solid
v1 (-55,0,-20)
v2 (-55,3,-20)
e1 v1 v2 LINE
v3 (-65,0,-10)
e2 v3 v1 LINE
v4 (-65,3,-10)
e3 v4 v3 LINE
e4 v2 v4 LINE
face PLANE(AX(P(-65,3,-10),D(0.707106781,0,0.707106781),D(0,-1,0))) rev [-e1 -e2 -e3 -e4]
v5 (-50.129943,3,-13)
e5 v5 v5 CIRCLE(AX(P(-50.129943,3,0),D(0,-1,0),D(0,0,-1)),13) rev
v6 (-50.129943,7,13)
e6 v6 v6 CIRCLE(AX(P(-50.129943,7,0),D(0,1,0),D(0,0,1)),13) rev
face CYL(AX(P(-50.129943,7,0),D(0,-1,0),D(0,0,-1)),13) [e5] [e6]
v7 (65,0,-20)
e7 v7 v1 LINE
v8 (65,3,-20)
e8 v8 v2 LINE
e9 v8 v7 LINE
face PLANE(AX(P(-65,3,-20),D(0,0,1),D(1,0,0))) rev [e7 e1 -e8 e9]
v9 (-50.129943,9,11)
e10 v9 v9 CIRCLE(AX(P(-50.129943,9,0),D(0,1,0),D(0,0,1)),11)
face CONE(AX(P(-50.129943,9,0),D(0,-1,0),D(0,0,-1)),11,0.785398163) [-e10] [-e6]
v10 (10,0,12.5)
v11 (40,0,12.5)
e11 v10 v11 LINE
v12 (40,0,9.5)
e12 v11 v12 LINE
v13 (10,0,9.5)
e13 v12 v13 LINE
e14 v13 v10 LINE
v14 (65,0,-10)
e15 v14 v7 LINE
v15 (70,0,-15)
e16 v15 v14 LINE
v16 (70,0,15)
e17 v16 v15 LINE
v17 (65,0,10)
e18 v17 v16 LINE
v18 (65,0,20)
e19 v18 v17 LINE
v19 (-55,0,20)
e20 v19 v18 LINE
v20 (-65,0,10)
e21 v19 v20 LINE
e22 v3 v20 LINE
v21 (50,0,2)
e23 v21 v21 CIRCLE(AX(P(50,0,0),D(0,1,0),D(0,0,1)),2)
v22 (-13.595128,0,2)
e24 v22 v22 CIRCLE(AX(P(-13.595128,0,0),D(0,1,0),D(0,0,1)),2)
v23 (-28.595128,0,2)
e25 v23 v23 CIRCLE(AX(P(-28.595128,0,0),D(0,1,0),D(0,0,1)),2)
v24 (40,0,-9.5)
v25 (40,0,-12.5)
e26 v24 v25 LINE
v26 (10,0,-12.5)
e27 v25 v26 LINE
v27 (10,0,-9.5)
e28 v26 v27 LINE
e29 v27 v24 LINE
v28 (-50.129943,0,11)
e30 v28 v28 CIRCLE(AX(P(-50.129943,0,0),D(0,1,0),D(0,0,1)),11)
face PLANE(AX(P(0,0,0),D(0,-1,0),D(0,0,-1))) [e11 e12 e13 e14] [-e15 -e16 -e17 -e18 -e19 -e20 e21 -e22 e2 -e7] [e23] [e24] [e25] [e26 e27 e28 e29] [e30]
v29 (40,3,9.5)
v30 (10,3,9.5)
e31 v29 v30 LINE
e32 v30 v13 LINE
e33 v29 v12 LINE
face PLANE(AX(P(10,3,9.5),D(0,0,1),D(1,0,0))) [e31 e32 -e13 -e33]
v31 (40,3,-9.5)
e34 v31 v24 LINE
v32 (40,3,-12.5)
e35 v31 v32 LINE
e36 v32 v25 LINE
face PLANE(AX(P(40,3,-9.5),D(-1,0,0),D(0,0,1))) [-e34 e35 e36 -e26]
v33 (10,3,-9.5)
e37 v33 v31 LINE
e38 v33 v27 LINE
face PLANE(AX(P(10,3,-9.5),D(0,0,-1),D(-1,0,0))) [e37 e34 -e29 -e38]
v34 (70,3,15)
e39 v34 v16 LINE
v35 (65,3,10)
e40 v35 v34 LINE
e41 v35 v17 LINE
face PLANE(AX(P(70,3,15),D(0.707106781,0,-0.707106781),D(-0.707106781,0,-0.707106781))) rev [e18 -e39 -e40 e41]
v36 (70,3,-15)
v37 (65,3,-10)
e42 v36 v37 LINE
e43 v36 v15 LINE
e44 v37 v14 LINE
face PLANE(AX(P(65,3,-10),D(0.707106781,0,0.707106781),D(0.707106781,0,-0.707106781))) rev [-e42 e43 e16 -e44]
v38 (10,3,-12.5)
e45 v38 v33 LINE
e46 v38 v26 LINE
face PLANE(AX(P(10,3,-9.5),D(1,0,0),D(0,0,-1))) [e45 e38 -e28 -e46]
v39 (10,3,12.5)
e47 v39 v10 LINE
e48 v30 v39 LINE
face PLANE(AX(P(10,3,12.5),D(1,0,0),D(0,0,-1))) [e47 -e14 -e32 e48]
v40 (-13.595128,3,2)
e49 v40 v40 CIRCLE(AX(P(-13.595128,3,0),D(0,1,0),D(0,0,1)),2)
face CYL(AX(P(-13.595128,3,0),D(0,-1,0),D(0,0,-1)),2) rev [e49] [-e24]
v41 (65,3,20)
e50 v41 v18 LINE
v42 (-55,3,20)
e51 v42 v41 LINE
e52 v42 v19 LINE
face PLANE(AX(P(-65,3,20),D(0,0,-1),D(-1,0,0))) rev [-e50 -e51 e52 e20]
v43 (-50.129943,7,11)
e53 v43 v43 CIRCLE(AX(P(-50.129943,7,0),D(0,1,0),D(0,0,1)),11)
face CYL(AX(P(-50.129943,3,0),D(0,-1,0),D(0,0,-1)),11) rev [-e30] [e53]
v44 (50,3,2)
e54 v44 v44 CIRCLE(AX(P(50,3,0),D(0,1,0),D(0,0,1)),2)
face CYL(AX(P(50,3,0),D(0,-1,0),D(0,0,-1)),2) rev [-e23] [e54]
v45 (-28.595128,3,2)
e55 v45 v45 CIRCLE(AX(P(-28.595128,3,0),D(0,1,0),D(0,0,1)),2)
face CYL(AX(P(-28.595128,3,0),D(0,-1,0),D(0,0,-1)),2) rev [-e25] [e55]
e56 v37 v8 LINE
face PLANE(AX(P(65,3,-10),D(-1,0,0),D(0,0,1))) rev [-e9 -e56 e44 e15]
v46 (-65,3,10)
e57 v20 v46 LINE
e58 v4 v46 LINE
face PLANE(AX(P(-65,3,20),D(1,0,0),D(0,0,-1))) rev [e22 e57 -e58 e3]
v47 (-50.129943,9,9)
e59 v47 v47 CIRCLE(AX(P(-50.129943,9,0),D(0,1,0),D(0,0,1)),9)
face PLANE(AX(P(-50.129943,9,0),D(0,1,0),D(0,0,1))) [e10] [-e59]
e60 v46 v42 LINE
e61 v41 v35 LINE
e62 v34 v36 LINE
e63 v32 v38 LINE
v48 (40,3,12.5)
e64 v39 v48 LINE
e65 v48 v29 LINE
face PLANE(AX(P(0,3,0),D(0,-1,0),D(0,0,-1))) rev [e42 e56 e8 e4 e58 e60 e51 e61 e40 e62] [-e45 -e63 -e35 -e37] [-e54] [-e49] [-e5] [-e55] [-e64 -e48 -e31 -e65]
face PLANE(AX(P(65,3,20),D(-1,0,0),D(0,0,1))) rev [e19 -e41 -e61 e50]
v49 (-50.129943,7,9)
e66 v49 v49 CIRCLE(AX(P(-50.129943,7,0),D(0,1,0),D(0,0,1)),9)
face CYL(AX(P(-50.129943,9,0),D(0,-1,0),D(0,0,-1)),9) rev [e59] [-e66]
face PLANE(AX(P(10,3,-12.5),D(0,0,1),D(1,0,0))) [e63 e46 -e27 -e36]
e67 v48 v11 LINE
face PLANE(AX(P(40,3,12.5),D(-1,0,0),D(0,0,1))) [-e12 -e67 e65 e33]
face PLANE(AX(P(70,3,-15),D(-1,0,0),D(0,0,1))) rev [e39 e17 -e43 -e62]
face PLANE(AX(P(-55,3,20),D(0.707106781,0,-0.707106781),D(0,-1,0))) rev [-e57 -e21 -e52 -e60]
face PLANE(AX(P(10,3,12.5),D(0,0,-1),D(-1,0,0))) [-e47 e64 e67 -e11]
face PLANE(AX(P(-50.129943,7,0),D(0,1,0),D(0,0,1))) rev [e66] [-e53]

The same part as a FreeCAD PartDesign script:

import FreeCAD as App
import Part
import Sketcher
from FreeCAD import Vector
Q = App.Units.Quantity


def edges_at(feature, points):
    """Names of the edges that pass closest to the given points."""
    edges = feature.Shape.Edges
    near = lambda p: min(range(len(edges)), key=lambda i: edges[i].distToShape(Part.Vertex(*p))[0])
    return sorted({f"Edge{near(p) + 1}" for p in points})

doc = App.newDocument("Part")
body = doc.addObject("PartDesign::Body", "Body")

# Sketch on XZ plane
sketch1 = doc.addObject("Sketcher::SketchObject", "Sketch")
body.addObject(sketch1)
sketch1.AttachmentSupport = (doc.XZ_Plane, [""])
sketch1.MapMode = "FlatFace"
sketch1.addGeometry(Part.LineSegment(Vector(70, -15, 0), Vector(65, -10, 0)), False)
sketch1.addGeometry(Part.LineSegment(Vector(65, -10, 0), Vector(65, -20, 0)), False)
sketch1.addGeometry(Part.LineSegment(Vector(65, -20, 0), Vector(-65, -20, 0)), False)
sketch1.addGeometry(Part.LineSegment(Vector(-65, -20, 0), Vector(-65, 20, 0)), False)
sketch1.addGeometry(Part.LineSegment(Vector(-65, 20, 0), Vector(65, 20, 0)), False)
sketch1.addGeometry(Part.LineSegment(Vector(65, 20, 0), Vector(65, 10, 0)), False)
sketch1.addGeometry(Part.LineSegment(Vector(65, 10, 0), Vector(70, 15, 0)), False)
sketch1.addGeometry(Part.LineSegment(Vector(70, 15, 0), Vector(70, -15, 0)), False)
sketch1.addGeometry(Part.LineSegment(Vector(10, 12.5, 0), Vector(10, 9.5, 0)), False)
sketch1.addGeometry(Part.LineSegment(Vector(10, 9.5, 0), Vector(40, 9.5, 0)), False)
sketch1.addGeometry(Part.LineSegment(Vector(40, 9.5, 0), Vector(40, 12.5, 0)), False)
sketch1.addGeometry(Part.LineSegment(Vector(40, 12.5, 0), Vector(10, 12.5, 0)), False)
sketch1.addGeometry(Part.Circle(Vector(50, 0, 0), Vector(0, 0, 1), 2), False)
sketch1.addGeometry(Part.LineSegment(Vector(10, -9.5, 0), Vector(10, -12.5, 0)), False)
sketch1.addGeometry(Part.LineSegment(Vector(10, -12.5, 0), Vector(40, -12.5, 0)), False)
sketch1.addGeometry(Part.LineSegment(Vector(40, -12.5, 0), Vector(40, -9.5, 0)), False)
sketch1.addGeometry(Part.LineSegment(Vector(40, -9.5, 0), Vector(10, -9.5, 0)), False)
sketch1.addGeometry(Part.Circle(Vector(-13.6, 0, 0), Vector(0, 0, 1), 2), False)
sketch1.addGeometry(Part.Circle(Vector(-28.6, 0, 0), Vector(0, 0, 1), 2), False)
sketch1.addGeometry(Part.Circle(Vector(-50.1, 0, 0), Vector(0, 0, 1), 11), False)
sketch1.addConstraint(Sketcher.Constraint("Coincident", 0, 2, 1, 1))
sketch1.addConstraint(Sketcher.Constraint("Coincident", 1, 2, 2, 1))
sketch1.addConstraint(Sketcher.Constraint("Coincident", 2, 2, 3, 1))
sketch1.addConstraint(Sketcher.Constraint("Coincident", 3, 2, 4, 1))
sketch1.addConstraint(Sketcher.Constraint("Coincident", 4, 2, 5, 1))
sketch1.addConstraint(Sketcher.Constraint("Coincident", 5, 2, 6, 1))
sketch1.addConstraint(Sketcher.Constraint("Coincident", 6, 2, 7, 1))
sketch1.addConstraint(Sketcher.Constraint("Coincident", 7, 2, 0, 1))
sketch1.addConstraint(Sketcher.Constraint("Coincident", 8, 2, 9, 1))
sketch1.addConstraint(Sketcher.Constraint("Coincident", 9, 2, 10, 1))
sketch1.addConstraint(Sketcher.Constraint("Coincident", 10, 2, 11, 1))
sketch1.addConstraint(Sketcher.Constraint("Coincident", 11, 2, 8, 1))
sketch1.addConstraint(Sketcher.Constraint("Coincident", 13, 2, 14, 1))
sketch1.addConstraint(Sketcher.Constraint("Coincident", 14, 2, 15, 1))
sketch1.addConstraint(Sketcher.Constraint("Coincident", 15, 2, 16, 1))
sketch1.addConstraint(Sketcher.Constraint("Coincident", 16, 2, 13, 1))
sketch1.addConstraint(Sketcher.Constraint("Vertical", 1))
sketch1.addConstraint(Sketcher.Constraint("Horizontal", 2))
sketch1.addConstraint(Sketcher.Constraint("Vertical", 3))
sketch1.addConstraint(Sketcher.Constraint("Horizontal", 4))
sketch1.addConstraint(Sketcher.Constraint("Vertical", 5))
sketch1.addConstraint(Sketcher.Constraint("Vertical", 7))
sketch1.addConstraint(Sketcher.Constraint("Vertical", 8))
sketch1.addConstraint(Sketcher.Constraint("Horizontal", 9))
sketch1.addConstraint(Sketcher.Constraint("Vertical", 10))
sketch1.addConstraint(Sketcher.Constraint("Horizontal", 11))
sketch1.addConstraint(Sketcher.Constraint("Vertical", 13))
sketch1.addConstraint(Sketcher.Constraint("Horizontal", 14))
sketch1.addConstraint(Sketcher.Constraint("Vertical", 15))
sketch1.addConstraint(Sketcher.Constraint("Horizontal", 16))
sketch1.addConstraint(Sketcher.Constraint("Equal", 12, 17))
sketch1.addConstraint(Sketcher.Constraint("Equal", 17, 18))
sketch1.addConstraint(Sketcher.Constraint("Symmetric", 1, 2, 3, 2, -1, 1))
sketch1.addConstraint(Sketcher.Constraint("Symmetric", 0, 2, 5, 2, -1))
sketch1.addConstraint(Sketcher.Constraint("Symmetric", 11, 2, 13, 2, -1))
sketch1.addConstraint(Sketcher.Constraint("Symmetric", 9, 2, 15, 2, -1))
sketch1.addConstraint(Sketcher.Constraint("PointOnObject", 12, 3, -1))
sketch1.addConstraint(Sketcher.Constraint("PointOnObject", 17, 3, -1))
sketch1.addConstraint(Sketcher.Constraint("PointOnObject", 18, 3, -1))
sketch1.addConstraint(Sketcher.Constraint("PointOnObject", 19, 3, -1))
sketch1.addConstraint(Sketcher.Constraint("Perpendicular", 0, 6))
sketch1.addConstraint(Sketcher.Constraint("Equal", 16, 7))
sketch1.addConstraint(Sketcher.Constraint("Equal", 0, 6))
sketch1.addConstraint(Sketcher.Constraint("Diameter", 12, Q("4 mm")))
sketch1.addConstraint(Sketcher.Constraint("Diameter", 19, Q("22 mm")))
sketch1.addConstraint(Sketcher.Constraint("DistanceX", 2, 2, 2, 1, Q("130 mm")))
sketch1.addConstraint(Sketcher.Constraint("DistanceX", 9, 1, 9, 2, Q("30 mm")))
sketch1.addConstraint(Sketcher.Constraint("DistanceY", 1, 2, 1, 1, Q("10 mm")))
sketch1.addConstraint(Sketcher.Constraint("DistanceY", 3, 1, 3, 2, Q("40 mm")))
sketch1.addConstraint(Sketcher.Constraint("DistanceY", 8, 2, 8, 1, Q("3 mm")))
sketch1.addConstraint(Sketcher.Constraint("DistanceX", -1, 1, 12, 3, Q("50 mm")))
sketch1.addConstraint(Sketcher.Constraint("DistanceX", -1, 1, 8, 2, Q("10 mm")))
sketch1.addConstraint(Sketcher.Constraint("DistanceX", 18, 3, 17, 3, Q("15 mm")))
sketch1.addConstraint(Sketcher.Constraint("DistanceY", 13, 2, 8, 2, Q("22 mm")))
sketch1.addConstraint(Sketcher.Constraint("DistanceX", 17, 3, -1, 1, Q("13.595128 mm")))
sketch1.addConstraint(Sketcher.Constraint("DistanceX", 19, 3, -1, 1, Q("50.129943 mm")))
pad1 = doc.addObject("PartDesign::Pad", "Pad")
body.addObject(pad1)
pad1.Profile = sketch1
pad1.Length = 3
pad1.Reversed = True

# Sketch on XZ plane
sketch2 = doc.addObject("Sketcher::SketchObject", "Sketch001")
body.addObject(sketch2)
sketch2.AttachmentSupport = (doc.XZ_Plane, [""])
sketch2.MapMode = "FlatFace"
sketch2.AttachmentOffset = App.Placement(Vector(0, 0, -3), App.Rotation())
sketch2.addGeometry(Part.Circle(Vector(-50, 0, 0), Vector(0, 0, 1), 13), False)
sketch2.addGeometry(Part.Circle(Vector(-50, 0, 0), Vector(0, 0, 1), 11), False)
sketch2.addConstraint(Sketcher.Constraint("Coincident", 1, 3, 0, 3))
sketch2.addConstraint(Sketcher.Constraint("PointOnObject", 0, 3, -1))
sketch2.addConstraint(Sketcher.Constraint("Diameter", 0, Q("26 mm")))
sketch2.addConstraint(Sketcher.Constraint("Diameter", 1, Q("22 mm")))
sketch2.addConstraint(Sketcher.Constraint("DistanceX", 0, 3, -1, 1, Q("50.129943 mm")))
pad2 = doc.addObject("PartDesign::Pad", "Pad001")
body.addObject(pad2)
pad2.Profile = sketch2
pad2.Length = 4
pad2.Reversed = True

# Sketch on XZ plane
sketch3 = doc.addObject("Sketcher::SketchObject", "Sketch002")
body.addObject(sketch3)
sketch3.AttachmentSupport = (doc.XZ_Plane, [""])
sketch3.MapMode = "FlatFace"
sketch3.AttachmentOffset = App.Placement(Vector(0, 0, -7), App.Rotation())
sketch3.addGeometry(Part.Circle(Vector(-50, 0, 0), Vector(0, 0, 1), 13), False)
sketch3.addGeometry(Part.Circle(Vector(-50, 0, 0), Vector(0, 0, 1), 9), False)
sketch3.addConstraint(Sketcher.Constraint("Coincident", 1, 3, 0, 3))
sketch3.addConstraint(Sketcher.Constraint("PointOnObject", 0, 3, -1))
sketch3.addConstraint(Sketcher.Constraint("Diameter", 0, Q("26 mm")))
sketch3.addConstraint(Sketcher.Constraint("Diameter", 1, Q("18 mm")))
sketch3.addConstraint(Sketcher.Constraint("DistanceX", 0, 3, -1, 1, Q("50.129943 mm")))
pad3 = doc.addObject("PartDesign::Pad", "Pad002")
body.addObject(pad3)
pad3.Profile = sketch3
pad3.Length = 2
pad3.Reversed = True
doc.recompute()

chamfer = doc.addObject("PartDesign::Chamfer", "Chamfer")
body.addObject(chamfer)
chamfer.Base = (pad3, edges_at(pad3, [(-50.13, 9, 13)]))
chamfer.Size = 2
doc.recompute()

chamfer2 = doc.addObject("PartDesign::Chamfer", "Chamfer001")
body.addObject(chamfer2)
chamfer2.Base = (chamfer, edges_at(chamfer, [(-65, 1.5, 20), (-65, 1.5, -20)]))
chamfer2.Size = 10

doc.recompute()
